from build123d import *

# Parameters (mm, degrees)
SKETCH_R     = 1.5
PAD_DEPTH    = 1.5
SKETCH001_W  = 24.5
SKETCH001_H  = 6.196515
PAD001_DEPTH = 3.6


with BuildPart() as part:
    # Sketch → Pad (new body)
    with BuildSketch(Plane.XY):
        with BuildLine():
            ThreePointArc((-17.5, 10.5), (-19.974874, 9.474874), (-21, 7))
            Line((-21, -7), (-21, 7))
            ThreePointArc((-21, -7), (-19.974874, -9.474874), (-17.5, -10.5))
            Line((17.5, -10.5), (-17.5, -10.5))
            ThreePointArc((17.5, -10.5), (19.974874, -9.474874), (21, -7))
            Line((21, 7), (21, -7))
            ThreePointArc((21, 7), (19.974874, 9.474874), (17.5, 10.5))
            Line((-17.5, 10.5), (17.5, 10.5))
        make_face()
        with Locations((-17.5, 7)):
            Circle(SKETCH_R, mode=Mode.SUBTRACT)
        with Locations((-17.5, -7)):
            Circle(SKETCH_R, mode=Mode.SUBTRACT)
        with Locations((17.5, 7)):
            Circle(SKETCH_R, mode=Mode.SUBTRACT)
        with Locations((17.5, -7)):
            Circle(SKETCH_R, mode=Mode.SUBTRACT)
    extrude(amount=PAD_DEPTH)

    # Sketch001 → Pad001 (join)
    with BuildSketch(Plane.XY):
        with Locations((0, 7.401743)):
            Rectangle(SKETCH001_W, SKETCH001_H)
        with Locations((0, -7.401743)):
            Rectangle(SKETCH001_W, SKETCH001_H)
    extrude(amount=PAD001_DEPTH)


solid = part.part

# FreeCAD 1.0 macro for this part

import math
import FreeCAD as App
import Part
import Sketcher
from FreeCAD import Vector

doc = App.newDocument("Part")
params = doc.addObject("Spreadsheet::Sheet", "Params")
for row, (alias, value) in enumerate([
    ("sketch1_diameter", "3 mm"),
    ("sketch1_radius", "3.499999 mm"),
    ("sketch1_width", "35 mm"),
    ("sketch1_height", "14 mm"),
    ("pad1_length", "1.5 mm"),
    ("sketch2_width", "24.5 mm"),
    ("pad2_length", "3.6 mm"),
], start=1):
    params.set(f"A{row}", alias)
    params.set(f"B{row}", "=" + value)
    params.setAlias(f"B{row}", alias)

body = doc.addObject("PartDesign::Body", "Body")

# Sketch on XY plane
sketch1 = body.newObject("Sketcher::SketchObject", "Sketch")
sketch1.AttachmentSupport = (doc.getObject("XY_Plane"), [""])
sketch1.MapMode = "FlatFace"
sketch1.addGeometry([
    Part.ArcOfCircle(Part.Circle(Vector(-17.5, 7, 0), Vector(0, 0, 1), 3.5), math.radians(90), math.radians(180)),  # 0
    Part.LineSegment(Vector(-21, 7, 0), Vector(-21, -7, 0)),  # 1
    Part.ArcOfCircle(Part.Circle(Vector(-17.5, -7, 0), Vector(0, 0, 1), 3.5), math.radians(180), math.radians(270)),  # 2
    Part.LineSegment(Vector(-17.5, -10.5, 0), Vector(17.5, -10.5, 0)),  # 3
    Part.ArcOfCircle(Part.Circle(Vector(17.5, -7, 0), Vector(0, 0, 1), 3.5), math.radians(-90), math.radians(0)),  # 4
    Part.LineSegment(Vector(21, -7, 0), Vector(21, 7, 0)),  # 5
    Part.ArcOfCircle(Part.Circle(Vector(17.5, 7, 0), Vector(0, 0, 1), 3.5), math.radians(0), math.radians(90)),  # 6
    Part.LineSegment(Vector(17.5, 10.5, 0), Vector(-17.5, 10.5, 0)),  # 7
    Part.Circle(Vector(-17.5, -7, 0), Vector(0, 0, 1), 1.5),  # 8
    Part.Circle(Vector(17.5, -7, 0), Vector(0, 0, 1), 1.5),  # 9
    Part.Circle(Vector(-17.5, 7, 0), Vector(0, 0, 1), 1.5),  # 10
    Part.Circle(Vector(17.5, 7, 0), Vector(0, 0, 1), 1.5),  # 11
], False)
sketch1.addConstraint([
    Sketcher.Constraint("Tangent", 0, 2, 1, 1),
    Sketcher.Constraint("Tangent", 1, 2, 2, 1),
    Sketcher.Constraint("Tangent", 2, 2, 3, 1),
    Sketcher.Constraint("Tangent", 3, 2, 4, 1),
    Sketcher.Constraint("Tangent", 4, 2, 5, 1),
    Sketcher.Constraint("Tangent", 5, 2, 6, 1),
    Sketcher.Constraint("Tangent", 6, 2, 7, 1),
    Sketcher.Constraint("Tangent", 7, 2, 0, 1),
    Sketcher.Constraint("Vertical", 1),
    Sketcher.Constraint("Horizontal", 3),
    Sketcher.Constraint("Vertical", 5),
    Sketcher.Constraint("Horizontal", 7),
    Sketcher.Constraint("Coincident", 8, 3, 2, 3),
    Sketcher.Constraint("Coincident", 9, 3, 4, 3),
    Sketcher.Constraint("Coincident", 10, 3, 0, 3),
    Sketcher.Constraint("Coincident", 11, 3, 6, 3),
    Sketcher.Constraint("Equal", 0, 2),
    Sketcher.Constraint("Equal", 2, 4),
    Sketcher.Constraint("Equal", 4, 6),
    Sketcher.Constraint("Equal", 8, 9),
    Sketcher.Constraint("Equal", 9, 10),
    Sketcher.Constraint("Equal", 10, 11),
    Sketcher.Constraint("Symmetric", 0, 3, 4, 3, -1, 1),
    Sketcher.Constraint("Diameter", 8, 3.0),
    Sketcher.Constraint("Radius", 0, 3.499999),
    Sketcher.Constraint("DistanceX", 3, 1, 3, 2, 35.0),
    Sketcher.Constraint("DistanceY", 1, 2, 1, 1, 14.0),
])
sketch1.setExpression("Constraints[23]", "Params.sketch1_diameter")
sketch1.setExpression("Constraints[24]", "Params.sketch1_radius")
sketch1.setExpression("Constraints[25]", "Params.sketch1_width")
sketch1.setExpression("Constraints[26]", "Params.sketch1_height")
pad1 = body.newObject("PartDesign::Pad", "Pad")
pad1.Profile = sketch1
pad1.setExpression("Length", "Params.pad1_length")

# Sketch on XY plane
sketch2 = body.newObject("Sketcher::SketchObject", "Sketch001")
sketch2.AttachmentSupport = (doc.getObject("XY_Plane"), [""])
sketch2.MapMode = "FlatFace"
sketch2.addGeometry([
    Part.LineSegment(Vector(-12, 11, 0), Vector(-12, 4, 0)),  # 0
    Part.LineSegment(Vector(-12, 4, 0), Vector(12, 4, 0)),  # 1
    Part.LineSegment(Vector(12, 4, 0), Vector(12, 11, 0)),  # 2
    Part.LineSegment(Vector(12, 11, 0), Vector(-12, 11, 0)),  # 3
    Part.LineSegment(Vector(-12, -4, 0), Vector(-12, -11, 0)),  # 4
    Part.LineSegment(Vector(-12, -11, 0), Vector(12, -11, 0)),  # 5
    Part.LineSegment(Vector(12, -11, 0), Vector(12, -4, 0)),  # 6
    Part.LineSegment(Vector(12, -4, 0), Vector(-12, -4, 0)),  # 7
], False)
sketch2.addConstraint([
    Sketcher.Constraint("Coincident", 0, 2, 1, 1),
    Sketcher.Constraint("Coincident", 1, 2, 2, 1),
    Sketcher.Constraint("Coincident", 2, 2, 3, 1),
    Sketcher.Constraint("Coincident", 3, 2, 0, 1),
    Sketcher.Constraint("Coincident", 4, 2, 5, 1),
    Sketcher.Constraint("Coincident", 5, 2, 6, 1),
    Sketcher.Constraint("Coincident", 6, 2, 7, 1),
    Sketcher.Constraint("Coincident", 7, 2, 4, 1),
    Sketcher.Constraint("Vertical", 0),
    Sketcher.Constraint("Horizontal", 1),
    Sketcher.Constraint("Vertical", 2),
    Sketcher.Constraint("Horizontal", 3),
    Sketcher.Constraint("Vertical", 4),
    Sketcher.Constraint("Horizontal", 5),
    Sketcher.Constraint("Vertical", 6),
    Sketcher.Constraint("Horizontal", 7),
    Sketcher.Constraint("Symmetric", 2, 2, 4, 2, -1, 1),
    Sketcher.Constraint("Symmetric", 0, 2, 6, 2, -1, 1),
    Sketcher.Constraint("Vertical", 3, 2, 4, 2),
    Sketcher.Constraint("DistanceX", 1, 1, 1, 2, 24.5),
    Sketcher.Constraint("DistanceY", 4, 2, 3, 2, 21.000001),
    Sketcher.Constraint("DistanceY", 0, 2, 0, 1, 6.196515),
])
sketch2.setExpression("Constraints[19]", "Params.sketch2_width")
pad2 = body.newObject("PartDesign::Pad", "Pad001")
pad2.Profile = sketch2
pad2.setExpression("Length", "Params.pad2_length")

doc.recompute()
